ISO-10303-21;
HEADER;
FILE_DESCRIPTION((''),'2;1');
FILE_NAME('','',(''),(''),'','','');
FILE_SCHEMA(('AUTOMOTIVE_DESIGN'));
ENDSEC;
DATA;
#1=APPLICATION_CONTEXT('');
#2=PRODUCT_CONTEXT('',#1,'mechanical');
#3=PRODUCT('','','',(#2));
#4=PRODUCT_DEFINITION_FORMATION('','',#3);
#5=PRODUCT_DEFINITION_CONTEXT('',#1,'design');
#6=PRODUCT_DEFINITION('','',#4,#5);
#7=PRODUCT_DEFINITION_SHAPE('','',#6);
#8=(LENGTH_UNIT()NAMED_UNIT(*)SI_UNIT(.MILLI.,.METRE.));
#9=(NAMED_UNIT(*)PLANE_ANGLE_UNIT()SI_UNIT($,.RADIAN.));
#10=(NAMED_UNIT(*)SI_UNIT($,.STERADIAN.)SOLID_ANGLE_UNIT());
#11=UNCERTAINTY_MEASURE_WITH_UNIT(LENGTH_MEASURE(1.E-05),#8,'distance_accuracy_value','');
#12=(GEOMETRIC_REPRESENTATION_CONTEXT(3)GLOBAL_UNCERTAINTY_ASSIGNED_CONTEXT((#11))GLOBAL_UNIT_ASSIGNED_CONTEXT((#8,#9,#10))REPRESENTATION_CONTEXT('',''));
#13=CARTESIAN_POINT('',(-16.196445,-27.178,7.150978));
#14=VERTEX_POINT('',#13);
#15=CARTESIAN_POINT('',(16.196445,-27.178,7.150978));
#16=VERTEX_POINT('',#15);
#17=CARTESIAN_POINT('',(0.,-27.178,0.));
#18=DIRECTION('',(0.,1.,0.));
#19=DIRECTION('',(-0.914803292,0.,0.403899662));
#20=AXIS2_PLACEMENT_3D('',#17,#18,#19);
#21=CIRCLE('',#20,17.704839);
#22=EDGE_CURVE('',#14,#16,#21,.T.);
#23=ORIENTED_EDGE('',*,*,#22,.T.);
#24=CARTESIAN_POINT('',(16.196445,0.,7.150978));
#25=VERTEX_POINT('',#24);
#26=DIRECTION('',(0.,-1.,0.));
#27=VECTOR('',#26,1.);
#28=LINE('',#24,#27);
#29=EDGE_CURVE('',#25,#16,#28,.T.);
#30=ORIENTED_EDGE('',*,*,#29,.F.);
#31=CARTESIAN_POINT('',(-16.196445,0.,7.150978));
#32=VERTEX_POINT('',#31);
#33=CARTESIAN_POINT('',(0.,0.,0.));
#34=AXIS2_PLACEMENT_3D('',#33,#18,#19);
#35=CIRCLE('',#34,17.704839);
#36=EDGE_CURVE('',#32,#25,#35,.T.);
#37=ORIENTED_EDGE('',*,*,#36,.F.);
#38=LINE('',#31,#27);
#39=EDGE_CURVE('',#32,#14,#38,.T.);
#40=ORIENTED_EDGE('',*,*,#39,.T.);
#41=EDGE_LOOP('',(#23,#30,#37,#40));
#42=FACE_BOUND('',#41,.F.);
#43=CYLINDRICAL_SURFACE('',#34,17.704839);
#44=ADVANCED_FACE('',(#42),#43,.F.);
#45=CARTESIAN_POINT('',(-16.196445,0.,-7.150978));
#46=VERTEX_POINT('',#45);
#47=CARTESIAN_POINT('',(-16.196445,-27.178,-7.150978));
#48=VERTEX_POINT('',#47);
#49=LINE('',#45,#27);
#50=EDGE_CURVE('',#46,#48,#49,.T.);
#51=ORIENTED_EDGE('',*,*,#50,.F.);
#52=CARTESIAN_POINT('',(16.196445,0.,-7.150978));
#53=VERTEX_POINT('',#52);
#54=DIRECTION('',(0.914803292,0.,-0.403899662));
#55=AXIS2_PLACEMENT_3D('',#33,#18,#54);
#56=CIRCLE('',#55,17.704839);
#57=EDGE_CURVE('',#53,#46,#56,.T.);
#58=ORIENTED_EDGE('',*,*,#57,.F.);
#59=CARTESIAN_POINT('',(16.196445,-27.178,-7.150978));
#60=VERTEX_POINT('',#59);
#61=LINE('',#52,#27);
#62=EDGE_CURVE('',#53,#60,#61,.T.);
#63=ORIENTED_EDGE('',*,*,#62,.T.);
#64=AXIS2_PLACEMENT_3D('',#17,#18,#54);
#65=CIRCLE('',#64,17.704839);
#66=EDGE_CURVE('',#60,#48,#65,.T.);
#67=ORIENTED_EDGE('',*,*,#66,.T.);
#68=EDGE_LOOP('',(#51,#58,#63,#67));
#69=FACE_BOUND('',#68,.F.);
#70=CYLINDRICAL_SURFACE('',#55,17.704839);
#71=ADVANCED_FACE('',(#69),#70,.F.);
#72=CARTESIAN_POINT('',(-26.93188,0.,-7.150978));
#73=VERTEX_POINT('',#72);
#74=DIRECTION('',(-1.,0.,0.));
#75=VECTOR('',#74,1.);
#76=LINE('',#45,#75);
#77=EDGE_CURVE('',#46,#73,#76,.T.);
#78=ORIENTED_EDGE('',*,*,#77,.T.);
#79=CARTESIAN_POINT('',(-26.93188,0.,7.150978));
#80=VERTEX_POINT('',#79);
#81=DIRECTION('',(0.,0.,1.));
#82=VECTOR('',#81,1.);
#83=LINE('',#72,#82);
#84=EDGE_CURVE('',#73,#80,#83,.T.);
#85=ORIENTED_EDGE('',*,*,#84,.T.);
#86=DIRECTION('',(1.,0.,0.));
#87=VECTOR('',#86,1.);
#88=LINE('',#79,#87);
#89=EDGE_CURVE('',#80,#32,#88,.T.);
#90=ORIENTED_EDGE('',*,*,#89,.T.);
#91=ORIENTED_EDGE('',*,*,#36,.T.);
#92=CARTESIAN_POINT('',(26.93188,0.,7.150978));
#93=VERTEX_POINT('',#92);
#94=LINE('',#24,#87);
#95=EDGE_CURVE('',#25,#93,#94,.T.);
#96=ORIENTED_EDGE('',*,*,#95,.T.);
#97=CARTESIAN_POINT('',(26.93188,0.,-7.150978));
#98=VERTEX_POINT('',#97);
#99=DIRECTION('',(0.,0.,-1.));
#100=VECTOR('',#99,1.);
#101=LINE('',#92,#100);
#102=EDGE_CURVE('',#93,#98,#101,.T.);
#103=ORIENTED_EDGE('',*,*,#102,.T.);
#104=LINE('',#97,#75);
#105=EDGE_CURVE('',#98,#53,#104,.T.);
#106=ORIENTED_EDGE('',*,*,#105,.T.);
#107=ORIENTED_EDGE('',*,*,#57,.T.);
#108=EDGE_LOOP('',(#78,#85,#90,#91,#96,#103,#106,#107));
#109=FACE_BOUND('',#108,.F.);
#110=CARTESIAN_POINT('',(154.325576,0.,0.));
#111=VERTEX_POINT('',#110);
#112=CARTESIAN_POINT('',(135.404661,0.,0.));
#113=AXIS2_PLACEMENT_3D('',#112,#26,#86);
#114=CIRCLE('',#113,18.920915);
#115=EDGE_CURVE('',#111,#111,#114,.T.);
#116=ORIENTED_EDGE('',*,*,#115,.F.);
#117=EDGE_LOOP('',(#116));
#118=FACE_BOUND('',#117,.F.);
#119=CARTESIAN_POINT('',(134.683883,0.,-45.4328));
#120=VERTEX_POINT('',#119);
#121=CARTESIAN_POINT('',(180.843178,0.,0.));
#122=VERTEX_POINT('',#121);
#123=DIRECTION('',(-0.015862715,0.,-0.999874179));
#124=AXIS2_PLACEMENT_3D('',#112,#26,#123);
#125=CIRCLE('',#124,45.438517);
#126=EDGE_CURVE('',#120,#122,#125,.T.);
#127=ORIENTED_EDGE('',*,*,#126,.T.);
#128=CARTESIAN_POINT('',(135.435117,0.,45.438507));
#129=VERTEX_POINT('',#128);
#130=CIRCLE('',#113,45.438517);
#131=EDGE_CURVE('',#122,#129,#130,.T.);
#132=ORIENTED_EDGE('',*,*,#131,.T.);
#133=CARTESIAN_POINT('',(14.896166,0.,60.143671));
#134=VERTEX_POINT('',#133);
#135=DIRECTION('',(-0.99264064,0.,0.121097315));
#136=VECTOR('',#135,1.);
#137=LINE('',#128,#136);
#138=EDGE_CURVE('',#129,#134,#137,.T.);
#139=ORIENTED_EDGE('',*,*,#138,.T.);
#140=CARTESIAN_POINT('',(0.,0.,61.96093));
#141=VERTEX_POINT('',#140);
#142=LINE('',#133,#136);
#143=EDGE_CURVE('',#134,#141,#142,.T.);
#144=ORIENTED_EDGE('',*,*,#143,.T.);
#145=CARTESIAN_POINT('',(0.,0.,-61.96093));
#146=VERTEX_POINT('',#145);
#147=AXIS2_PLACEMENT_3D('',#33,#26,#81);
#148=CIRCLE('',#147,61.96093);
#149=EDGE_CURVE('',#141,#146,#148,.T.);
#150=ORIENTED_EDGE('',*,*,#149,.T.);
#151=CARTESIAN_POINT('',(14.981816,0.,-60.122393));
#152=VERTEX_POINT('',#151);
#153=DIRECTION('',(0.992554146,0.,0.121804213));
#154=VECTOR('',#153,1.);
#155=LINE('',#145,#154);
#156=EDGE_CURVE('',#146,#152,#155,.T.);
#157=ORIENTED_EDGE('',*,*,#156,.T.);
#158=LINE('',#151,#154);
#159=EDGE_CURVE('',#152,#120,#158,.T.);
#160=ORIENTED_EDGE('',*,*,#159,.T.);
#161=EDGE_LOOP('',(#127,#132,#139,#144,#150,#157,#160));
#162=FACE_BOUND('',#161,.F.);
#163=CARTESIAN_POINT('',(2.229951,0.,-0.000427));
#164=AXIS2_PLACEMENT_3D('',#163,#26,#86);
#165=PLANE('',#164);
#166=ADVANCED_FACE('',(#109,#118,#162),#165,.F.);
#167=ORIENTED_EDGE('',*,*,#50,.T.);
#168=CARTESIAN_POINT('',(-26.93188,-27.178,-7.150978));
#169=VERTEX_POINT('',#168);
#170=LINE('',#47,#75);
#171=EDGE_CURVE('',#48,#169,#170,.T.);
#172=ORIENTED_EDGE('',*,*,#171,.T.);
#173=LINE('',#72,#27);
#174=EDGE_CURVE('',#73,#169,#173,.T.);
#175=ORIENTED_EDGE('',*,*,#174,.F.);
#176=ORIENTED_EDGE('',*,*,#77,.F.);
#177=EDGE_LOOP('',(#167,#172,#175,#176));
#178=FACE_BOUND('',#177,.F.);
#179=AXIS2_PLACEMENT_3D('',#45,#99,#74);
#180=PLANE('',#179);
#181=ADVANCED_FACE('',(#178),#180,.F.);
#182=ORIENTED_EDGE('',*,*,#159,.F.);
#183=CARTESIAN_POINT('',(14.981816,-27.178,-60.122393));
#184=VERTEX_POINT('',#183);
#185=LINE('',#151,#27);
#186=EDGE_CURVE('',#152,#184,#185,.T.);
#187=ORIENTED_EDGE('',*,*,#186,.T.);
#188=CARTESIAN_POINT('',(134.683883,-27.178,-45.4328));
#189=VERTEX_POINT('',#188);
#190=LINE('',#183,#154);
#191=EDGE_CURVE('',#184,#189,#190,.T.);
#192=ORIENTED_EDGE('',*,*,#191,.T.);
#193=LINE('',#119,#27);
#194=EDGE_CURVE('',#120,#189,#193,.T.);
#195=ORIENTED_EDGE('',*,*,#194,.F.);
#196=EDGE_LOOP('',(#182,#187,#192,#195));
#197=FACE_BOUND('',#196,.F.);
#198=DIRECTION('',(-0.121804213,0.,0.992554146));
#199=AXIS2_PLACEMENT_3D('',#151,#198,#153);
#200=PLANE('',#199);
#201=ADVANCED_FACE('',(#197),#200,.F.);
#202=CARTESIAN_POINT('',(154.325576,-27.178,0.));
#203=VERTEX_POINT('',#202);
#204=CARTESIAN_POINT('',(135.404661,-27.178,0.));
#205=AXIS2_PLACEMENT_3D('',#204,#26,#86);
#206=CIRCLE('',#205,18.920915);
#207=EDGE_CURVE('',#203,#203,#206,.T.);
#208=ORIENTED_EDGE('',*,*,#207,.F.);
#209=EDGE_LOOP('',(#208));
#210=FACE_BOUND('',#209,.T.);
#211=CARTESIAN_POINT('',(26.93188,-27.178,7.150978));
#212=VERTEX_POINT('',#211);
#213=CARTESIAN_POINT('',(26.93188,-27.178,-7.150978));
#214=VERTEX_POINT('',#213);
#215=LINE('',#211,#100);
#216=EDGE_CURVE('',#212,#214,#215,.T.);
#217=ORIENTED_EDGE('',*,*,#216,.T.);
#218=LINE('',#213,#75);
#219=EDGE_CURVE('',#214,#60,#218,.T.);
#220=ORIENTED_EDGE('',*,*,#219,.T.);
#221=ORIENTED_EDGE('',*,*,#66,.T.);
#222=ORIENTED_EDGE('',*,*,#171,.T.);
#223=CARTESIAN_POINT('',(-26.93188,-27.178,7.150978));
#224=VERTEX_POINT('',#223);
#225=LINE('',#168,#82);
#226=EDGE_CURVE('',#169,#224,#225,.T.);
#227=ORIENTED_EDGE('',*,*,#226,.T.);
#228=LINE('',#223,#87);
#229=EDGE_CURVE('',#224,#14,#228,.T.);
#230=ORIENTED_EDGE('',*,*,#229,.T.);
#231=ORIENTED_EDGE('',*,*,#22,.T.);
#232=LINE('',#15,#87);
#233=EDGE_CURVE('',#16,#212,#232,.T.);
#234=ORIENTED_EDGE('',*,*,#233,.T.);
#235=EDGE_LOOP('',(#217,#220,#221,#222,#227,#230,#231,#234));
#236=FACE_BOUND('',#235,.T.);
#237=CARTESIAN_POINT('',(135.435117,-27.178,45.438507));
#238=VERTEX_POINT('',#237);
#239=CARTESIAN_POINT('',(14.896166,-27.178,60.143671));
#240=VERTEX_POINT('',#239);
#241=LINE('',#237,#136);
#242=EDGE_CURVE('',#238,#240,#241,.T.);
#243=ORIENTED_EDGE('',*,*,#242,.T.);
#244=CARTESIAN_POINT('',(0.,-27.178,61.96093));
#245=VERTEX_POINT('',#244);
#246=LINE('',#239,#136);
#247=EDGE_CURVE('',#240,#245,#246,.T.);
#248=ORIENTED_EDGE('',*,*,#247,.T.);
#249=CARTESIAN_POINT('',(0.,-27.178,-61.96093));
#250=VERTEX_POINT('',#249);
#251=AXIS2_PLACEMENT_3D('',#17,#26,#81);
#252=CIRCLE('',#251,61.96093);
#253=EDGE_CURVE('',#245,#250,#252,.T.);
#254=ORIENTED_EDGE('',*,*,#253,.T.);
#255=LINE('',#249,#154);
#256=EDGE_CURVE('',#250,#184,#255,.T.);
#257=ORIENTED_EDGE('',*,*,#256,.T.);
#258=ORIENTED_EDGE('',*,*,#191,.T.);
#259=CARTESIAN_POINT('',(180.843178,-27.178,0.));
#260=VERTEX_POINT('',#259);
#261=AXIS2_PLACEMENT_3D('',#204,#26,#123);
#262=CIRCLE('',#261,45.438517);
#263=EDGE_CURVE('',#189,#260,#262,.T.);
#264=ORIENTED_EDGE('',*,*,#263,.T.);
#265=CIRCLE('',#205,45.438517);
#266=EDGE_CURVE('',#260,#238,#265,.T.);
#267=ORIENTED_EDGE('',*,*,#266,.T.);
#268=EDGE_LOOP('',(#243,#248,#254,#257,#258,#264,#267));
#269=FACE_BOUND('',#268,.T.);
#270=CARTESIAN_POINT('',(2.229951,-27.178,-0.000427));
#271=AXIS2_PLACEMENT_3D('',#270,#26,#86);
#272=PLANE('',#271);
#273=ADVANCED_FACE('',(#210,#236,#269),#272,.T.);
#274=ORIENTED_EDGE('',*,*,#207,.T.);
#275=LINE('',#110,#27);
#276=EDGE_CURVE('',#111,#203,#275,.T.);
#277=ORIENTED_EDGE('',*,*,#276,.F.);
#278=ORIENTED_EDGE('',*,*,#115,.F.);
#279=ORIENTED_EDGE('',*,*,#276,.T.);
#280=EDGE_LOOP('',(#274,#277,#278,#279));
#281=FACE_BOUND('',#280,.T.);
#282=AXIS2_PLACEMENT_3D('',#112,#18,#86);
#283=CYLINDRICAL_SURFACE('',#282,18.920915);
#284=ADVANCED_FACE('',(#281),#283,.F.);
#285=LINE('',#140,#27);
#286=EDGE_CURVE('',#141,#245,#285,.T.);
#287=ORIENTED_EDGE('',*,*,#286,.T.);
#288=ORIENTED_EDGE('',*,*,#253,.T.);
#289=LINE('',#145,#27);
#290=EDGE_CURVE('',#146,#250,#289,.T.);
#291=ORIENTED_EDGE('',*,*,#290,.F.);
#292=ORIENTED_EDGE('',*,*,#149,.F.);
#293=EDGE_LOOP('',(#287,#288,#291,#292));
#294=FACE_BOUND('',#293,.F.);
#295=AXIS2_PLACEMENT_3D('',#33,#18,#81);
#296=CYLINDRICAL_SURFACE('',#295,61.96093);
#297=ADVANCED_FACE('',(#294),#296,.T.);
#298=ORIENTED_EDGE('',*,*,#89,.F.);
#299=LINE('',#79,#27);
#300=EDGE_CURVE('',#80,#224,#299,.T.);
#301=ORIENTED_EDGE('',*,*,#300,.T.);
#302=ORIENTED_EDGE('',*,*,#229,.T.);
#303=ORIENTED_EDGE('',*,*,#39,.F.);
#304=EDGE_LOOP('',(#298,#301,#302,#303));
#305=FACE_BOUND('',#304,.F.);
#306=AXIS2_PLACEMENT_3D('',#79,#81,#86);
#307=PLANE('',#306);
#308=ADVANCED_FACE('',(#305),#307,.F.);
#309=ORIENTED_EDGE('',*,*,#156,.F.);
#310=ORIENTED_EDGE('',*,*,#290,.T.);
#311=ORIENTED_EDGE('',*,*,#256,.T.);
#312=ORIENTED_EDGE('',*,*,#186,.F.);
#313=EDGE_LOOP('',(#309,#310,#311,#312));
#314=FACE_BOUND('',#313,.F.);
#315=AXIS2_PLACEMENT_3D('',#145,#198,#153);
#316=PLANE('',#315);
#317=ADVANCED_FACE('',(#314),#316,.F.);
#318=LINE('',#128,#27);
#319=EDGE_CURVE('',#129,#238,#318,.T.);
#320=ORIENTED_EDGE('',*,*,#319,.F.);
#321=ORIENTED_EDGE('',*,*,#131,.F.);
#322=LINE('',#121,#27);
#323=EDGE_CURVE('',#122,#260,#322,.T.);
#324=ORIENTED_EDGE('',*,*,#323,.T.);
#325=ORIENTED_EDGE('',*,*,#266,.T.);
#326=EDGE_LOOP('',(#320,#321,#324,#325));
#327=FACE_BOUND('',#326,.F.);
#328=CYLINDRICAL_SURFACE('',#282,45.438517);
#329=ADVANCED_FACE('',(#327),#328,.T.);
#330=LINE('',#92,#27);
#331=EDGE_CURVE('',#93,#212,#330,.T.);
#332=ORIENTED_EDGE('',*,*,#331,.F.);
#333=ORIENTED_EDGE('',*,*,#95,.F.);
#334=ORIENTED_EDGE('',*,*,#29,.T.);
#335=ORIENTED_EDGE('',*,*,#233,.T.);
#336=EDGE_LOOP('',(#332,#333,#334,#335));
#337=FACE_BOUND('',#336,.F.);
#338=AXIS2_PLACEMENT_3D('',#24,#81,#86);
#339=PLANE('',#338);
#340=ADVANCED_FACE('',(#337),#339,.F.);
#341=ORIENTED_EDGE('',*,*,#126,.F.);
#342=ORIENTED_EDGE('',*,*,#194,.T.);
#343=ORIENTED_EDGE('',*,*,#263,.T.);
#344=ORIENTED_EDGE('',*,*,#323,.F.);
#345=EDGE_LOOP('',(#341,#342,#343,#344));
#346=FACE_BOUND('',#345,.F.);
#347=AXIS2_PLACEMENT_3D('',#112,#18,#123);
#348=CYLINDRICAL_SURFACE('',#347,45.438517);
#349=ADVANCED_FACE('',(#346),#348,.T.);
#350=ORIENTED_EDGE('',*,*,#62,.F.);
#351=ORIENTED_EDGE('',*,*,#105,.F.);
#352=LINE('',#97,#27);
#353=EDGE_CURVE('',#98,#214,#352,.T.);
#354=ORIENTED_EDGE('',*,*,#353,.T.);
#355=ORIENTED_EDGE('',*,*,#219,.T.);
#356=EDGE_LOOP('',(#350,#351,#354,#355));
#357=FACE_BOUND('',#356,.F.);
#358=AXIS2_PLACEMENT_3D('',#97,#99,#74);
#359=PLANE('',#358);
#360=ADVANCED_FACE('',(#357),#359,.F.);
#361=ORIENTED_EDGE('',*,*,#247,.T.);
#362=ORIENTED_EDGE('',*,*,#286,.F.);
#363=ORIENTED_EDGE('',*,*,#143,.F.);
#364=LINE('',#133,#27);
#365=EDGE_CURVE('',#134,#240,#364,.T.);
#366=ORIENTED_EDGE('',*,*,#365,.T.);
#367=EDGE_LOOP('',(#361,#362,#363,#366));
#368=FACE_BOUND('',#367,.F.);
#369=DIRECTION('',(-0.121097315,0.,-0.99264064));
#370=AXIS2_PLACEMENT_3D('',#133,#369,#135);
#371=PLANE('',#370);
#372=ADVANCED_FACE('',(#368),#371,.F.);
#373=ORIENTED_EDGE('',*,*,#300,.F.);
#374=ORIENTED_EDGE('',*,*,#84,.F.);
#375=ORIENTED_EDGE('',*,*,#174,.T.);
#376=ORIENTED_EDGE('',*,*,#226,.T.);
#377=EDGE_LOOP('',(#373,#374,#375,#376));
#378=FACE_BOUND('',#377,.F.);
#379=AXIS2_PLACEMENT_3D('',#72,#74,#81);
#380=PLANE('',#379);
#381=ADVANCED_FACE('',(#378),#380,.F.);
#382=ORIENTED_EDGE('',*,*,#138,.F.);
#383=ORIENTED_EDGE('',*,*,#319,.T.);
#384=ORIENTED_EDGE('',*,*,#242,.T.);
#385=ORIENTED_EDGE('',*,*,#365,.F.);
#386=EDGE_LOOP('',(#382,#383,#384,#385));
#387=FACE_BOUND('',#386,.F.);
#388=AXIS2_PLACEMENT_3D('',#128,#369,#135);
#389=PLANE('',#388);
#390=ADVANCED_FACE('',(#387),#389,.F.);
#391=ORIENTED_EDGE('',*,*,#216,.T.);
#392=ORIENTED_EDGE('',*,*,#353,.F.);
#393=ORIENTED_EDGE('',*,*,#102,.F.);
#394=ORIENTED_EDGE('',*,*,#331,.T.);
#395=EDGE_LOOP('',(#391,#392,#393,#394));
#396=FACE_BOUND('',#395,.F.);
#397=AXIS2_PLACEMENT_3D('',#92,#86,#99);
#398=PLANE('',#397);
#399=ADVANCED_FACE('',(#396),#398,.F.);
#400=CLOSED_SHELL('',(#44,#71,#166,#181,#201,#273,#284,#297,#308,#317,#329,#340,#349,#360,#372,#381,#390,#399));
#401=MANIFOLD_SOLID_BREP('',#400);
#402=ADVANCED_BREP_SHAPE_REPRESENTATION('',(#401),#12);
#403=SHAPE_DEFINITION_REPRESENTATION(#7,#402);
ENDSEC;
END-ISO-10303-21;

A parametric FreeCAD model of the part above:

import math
import FreeCAD as App
import Part
import Sketcher
Q = App.Units.Quantity

doc = App.newDocument("Part")
body = doc.addObject("PartDesign::Body", "Body")

sketch1 = doc.addObject("Sketcher::SketchObject", "Sketch")
body.addObject(sketch1)
sketch1.AttachmentSupport = (doc.XZ_Plane, [""])
sketch1.MapMode = "FlatFace"
sketch1.addGeometry([
    Part.LineSegment(App.Vector(14.896166, 60.143671, 0), App.Vector(0, 61.96093, 0)),
    Part.ArcOfCircle(Part.Circle(App.Vector(0, 0, 0), App.Vector(0, 0, 1), 61.96093), math.radians(90), math.radians(270)),
    Part.LineSegment(App.Vector(0, -61.96093, 0), App.Vector(14.981816, -60.122393, 0)),
    Part.LineSegment(App.Vector(14.981816, -60.122393, 0), App.Vector(134.683883, -45.4328, 0)),
    Part.ArcOfCircle(Part.Circle(App.Vector(135.404661, 0, 0), App.Vector(0, 0, 1), 45.438517), math.radians(-90.908905), math.radians(0)),
    Part.ArcOfCircle(Part.Circle(App.Vector(135.404661, 0, 0), App.Vector(0, 0, 1), 45.438517), math.radians(0), math.radians(89.961596)),
    Part.LineSegment(App.Vector(135.435117, 45.438507, 0), App.Vector(14.896166, 60.143671, 0)),
    Part.LineSegment(App.Vector(26.93188, -7.150978, 0), App.Vector(16.196445, -7.150978, 0)),
    Part.ArcOfCircle(Part.Circle(App.Vector(0, 0, 0), App.Vector(0, 0, 1), 17.704839), math.radians(-156.177807), math.radians(-23.822193)),
    Part.LineSegment(App.Vector(-16.196445, -7.150978, 0), App.Vector(-26.93188, -7.150978, 0)),
    Part.LineSegment(App.Vector(-26.93188, -7.150978, 0), App.Vector(-26.93188, 7.150978, 0)),
    Part.LineSegment(App.Vector(-26.93188, 7.150978, 0), App.Vector(-16.196445, 7.150978, 0)),
    Part.ArcOfCircle(Part.Circle(App.Vector(0, 0, 0), App.Vector(0, 0, 1), 17.704839), math.radians(23.822193), math.radians(156.177807)),
    Part.LineSegment(App.Vector(16.196445, 7.150978, 0), App.Vector(26.93188, 7.150978, 0)),
    Part.LineSegment(App.Vector(26.93188, 7.150978, 0), App.Vector(26.93188, -7.150978, 0)),
    Part.Circle(App.Vector(135.404661, 0, 0), App.Vector(0, 0, 1), 18.920915),
], False)
sketch1.addConstraint([
    Sketcher.Constraint("Coincident", 0, 2, 1, 1),
    Sketcher.Constraint("Coincident", 1, 2, 2, 1),
    Sketcher.Constraint("Coincident", 2, 2, 3, 1),
    Sketcher.Constraint("Coincident", 3, 2, 4, 1),
    Sketcher.Constraint("Tangent", 4, 2, 5, 1),
    Sketcher.Constraint("Coincident", 5, 2, 6, 1),
    Sketcher.Constraint("Coincident", 6, 2, 0, 1),
    Sketcher.Constraint("Coincident", 7, 2, 8, 2),
    Sketcher.Constraint("Coincident", 8, 1, 9, 1),
    Sketcher.Constraint("Coincident", 9, 2, 10, 1),
    Sketcher.Constraint("Coincident", 10, 2, 11, 1),
    Sketcher.Constraint("Coincident", 11, 2, 12, 2),
    Sketcher.Constraint("Coincident", 12, 1, 13, 1),
    Sketcher.Constraint("Coincident", 13, 2, 14, 1),
    Sketcher.Constraint("Coincident", 14, 2, 7, 1),
    Sketcher.Constraint("Horizontal", 7),
    Sketcher.Constraint("Horizontal", 9),
    Sketcher.Constraint("Vertical", 10),
    Sketcher.Constraint("Horizontal", 11),
    Sketcher.Constraint("Horizontal", 13),
    Sketcher.Constraint("Vertical", 14),
    Sketcher.Constraint("Coincident", 1, 3, -1, 1),
    Sketcher.Constraint("Coincident", 8, 3, -1, 1),
    Sketcher.Constraint("Coincident", 12, 3, -1, 1),
    Sketcher.Constraint("Coincident", 15, 3, 4, 3),
    Sketcher.Constraint("Equal", 4, 5),
    Sketcher.Constraint("Equal", 8, 12),
    Sketcher.Constraint("Symmetric", 9, 2, 13, 2, -1, 1),
    Sketcher.Constraint("PointOnObject", 4, 3, -1),
    Sketcher.Constraint("PointOnObject", 0, 2, -2),
    Sketcher.Constraint("PointOnObject", 1, 2, -2),
    Sketcher.Constraint("PointOnObject", 4, 2, -1),
    Sketcher.Constraint("Parallel", 2, 3),
    Sketcher.Constraint("Parallel", 0, 6),
    Sketcher.Constraint("Horizontal", 7, 2, 8, 1),
    Sketcher.Constraint("Horizontal", 11, 2, 12, 1),
    Sketcher.Constraint("Diameter", 15, 37.841829),
    Sketcher.Constraint("Radius", 1, 61.96093),
    Sketcher.Constraint("Radius", 8, 17.704839),
    Sketcher.Constraint("Radius", 4, 45.438517),
    Sketcher.Constraint("DistanceY", 3, 2, -1, 1, 45.4328),
    Sketcher.Constraint("Distance", 6, 121.432618),
    Sketcher.Constraint("DistanceX", 7, 2, 7, 1, 10.735435),
    Sketcher.Constraint("DistanceY", 10, 1, 10, 2, 14.301957),
    Sketcher.Constraint("DistanceX", -1, 1, 4, 3, 135.404661),
    Sketcher.Constraint("DistanceY", -1, 1, 6, 2, 60.143671),
    Sketcher.Constraint("DistanceX", 6, 2, 2, 2, 0.08565),
])
pad1 = doc.addObject("PartDesign::Pad", "Pad")
body.addObject(pad1)
pad1.Profile = sketch1
pad1.Length = Q("1.07 in")

doc.recompute()
